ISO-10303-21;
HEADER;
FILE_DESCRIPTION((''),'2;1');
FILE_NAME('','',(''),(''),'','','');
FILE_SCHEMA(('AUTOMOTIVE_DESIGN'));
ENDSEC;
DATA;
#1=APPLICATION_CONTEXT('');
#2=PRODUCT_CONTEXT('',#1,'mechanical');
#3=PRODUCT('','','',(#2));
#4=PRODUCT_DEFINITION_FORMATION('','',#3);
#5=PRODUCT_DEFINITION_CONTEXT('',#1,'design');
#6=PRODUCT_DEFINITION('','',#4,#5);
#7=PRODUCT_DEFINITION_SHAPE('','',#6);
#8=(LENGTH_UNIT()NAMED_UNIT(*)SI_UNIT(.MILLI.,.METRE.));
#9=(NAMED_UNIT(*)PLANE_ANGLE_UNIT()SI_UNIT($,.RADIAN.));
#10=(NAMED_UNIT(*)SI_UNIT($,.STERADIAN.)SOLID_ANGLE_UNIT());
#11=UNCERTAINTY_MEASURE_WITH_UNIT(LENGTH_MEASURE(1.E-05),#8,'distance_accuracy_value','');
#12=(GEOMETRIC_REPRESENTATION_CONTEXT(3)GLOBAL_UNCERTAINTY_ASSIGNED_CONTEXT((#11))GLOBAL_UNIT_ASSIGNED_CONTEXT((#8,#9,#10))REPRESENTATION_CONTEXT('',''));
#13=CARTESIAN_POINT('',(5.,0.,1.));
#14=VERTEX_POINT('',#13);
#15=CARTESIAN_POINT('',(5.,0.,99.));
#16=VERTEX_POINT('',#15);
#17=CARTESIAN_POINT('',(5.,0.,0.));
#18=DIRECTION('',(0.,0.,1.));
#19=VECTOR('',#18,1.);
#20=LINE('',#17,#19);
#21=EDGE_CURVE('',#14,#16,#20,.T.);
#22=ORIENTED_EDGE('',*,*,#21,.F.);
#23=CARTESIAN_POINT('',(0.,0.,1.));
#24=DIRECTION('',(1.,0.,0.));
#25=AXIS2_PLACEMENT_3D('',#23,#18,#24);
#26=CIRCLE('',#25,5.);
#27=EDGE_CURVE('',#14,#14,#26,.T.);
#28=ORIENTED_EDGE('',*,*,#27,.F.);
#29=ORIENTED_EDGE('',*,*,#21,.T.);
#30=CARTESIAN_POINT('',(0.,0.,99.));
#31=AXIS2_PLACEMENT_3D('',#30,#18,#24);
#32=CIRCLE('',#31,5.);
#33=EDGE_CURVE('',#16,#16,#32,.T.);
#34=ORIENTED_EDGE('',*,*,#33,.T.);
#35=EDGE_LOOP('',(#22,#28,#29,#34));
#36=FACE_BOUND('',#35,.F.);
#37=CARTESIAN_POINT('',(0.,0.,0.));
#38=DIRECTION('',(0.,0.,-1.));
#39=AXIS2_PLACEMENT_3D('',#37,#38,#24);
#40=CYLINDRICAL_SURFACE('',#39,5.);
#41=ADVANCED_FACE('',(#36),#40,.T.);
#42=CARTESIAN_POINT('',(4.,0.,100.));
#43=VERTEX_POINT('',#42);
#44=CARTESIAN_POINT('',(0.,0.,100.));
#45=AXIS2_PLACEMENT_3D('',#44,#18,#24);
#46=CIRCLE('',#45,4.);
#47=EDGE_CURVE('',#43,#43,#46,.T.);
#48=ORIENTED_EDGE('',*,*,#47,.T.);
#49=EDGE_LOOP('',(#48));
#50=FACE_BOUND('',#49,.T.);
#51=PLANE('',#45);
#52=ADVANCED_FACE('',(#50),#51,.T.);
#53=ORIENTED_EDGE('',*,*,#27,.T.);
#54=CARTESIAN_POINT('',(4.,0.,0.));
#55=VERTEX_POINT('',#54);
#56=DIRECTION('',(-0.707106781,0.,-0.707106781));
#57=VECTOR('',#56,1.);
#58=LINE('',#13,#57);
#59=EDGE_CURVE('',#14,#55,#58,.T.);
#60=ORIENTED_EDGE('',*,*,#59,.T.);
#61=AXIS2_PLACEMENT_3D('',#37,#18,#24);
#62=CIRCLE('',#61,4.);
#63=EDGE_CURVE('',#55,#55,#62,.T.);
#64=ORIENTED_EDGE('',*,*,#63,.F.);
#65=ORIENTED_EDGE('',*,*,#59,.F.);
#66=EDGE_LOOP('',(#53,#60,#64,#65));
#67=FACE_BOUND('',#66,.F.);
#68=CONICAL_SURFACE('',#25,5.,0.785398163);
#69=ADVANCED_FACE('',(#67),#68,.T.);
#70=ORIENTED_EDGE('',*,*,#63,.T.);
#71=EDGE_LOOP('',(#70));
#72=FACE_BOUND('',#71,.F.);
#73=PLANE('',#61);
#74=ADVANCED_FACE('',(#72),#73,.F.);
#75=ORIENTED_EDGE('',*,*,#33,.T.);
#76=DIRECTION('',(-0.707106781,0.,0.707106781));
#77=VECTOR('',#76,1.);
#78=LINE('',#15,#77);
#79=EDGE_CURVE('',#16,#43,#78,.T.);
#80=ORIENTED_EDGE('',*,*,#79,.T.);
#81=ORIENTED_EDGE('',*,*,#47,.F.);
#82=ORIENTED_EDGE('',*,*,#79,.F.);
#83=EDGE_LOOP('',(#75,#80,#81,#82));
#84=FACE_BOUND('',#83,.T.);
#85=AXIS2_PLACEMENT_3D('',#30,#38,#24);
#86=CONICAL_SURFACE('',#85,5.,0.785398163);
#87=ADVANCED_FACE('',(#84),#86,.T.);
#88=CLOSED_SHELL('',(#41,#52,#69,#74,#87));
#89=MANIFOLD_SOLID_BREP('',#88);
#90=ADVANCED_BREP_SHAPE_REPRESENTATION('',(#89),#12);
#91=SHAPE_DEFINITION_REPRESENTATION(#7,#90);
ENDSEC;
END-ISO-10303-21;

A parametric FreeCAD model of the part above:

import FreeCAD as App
import Part
import Sketcher

V = App.Vector
Q = App.Units.Quantity


def edges_at(feature, points):
    """Names of the edges that pass closest to the given points."""
    edges = feature.Shape.Edges
    near = lambda p: min(range(len(edges)), key=lambda i: edges[i].distToShape(Part.Vertex(*p))[0])
    return sorted({f"Edge{near(p) + 1}" for p in points})

doc = App.newDocument("Part")
body = doc.addObject("PartDesign::Body", "Body")

sketch1 = doc.addObject("Sketcher::SketchObject", "Sketch")
body.addObject(sketch1)
sketch1.AttachmentSupport = (doc.XY_Plane, [""])
sketch1.MapMode = "FlatFace"
sketch1.addGeometry(Part.Circle(V(0, 0, 0), V(0, 0, 1), 5), False)
sketch1.addConstraint([
    Sketcher.Constraint("Coincident", 0, 3, -1, 1),
    Sketcher.Constraint("Diameter", 0, Q("10 mm")),
])
pad1 = doc.addObject("PartDesign::Pad", "Pad")
body.addObject(pad1)
pad1.Profile = sketch1
pad1.Length = 100
doc.recompute()

chamfer = doc.addObject("PartDesign::Chamfer", "Chamfer")
body.addObject(chamfer)
chamfer.Base = (pad1, edges_at(pad1, [(-4.662, -1.808, 100), (-4.662, -1.808, 0)]))
chamfer.Size = 1

doc.recompute()
